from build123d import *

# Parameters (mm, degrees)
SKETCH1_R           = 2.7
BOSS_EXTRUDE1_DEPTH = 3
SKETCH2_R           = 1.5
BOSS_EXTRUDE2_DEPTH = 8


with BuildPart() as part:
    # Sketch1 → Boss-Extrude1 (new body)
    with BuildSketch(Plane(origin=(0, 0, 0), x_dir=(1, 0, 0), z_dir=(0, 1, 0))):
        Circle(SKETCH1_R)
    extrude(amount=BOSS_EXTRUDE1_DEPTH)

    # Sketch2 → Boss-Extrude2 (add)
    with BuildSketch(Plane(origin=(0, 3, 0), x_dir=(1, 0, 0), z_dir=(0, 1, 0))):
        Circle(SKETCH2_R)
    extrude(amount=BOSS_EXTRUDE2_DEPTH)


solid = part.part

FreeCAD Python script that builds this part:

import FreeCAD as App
import Part
import Sketcher

V = App.Vector
Q = App.Units.Quantity

doc = App.newDocument("Part")
body = doc.addObject("PartDesign::Body", "Body")

sketch1 = doc.addObject("Sketcher::SketchObject", "Sketch")
body.addObject(sketch1)
sketch1.AttachmentSupport = (doc.XZ_Plane, [""])
sketch1.MapMode = "FlatFace"
sketch1.addGeometry(Part.Circle(V(0, 0, 0), V(0, 0, 1), 2.7), False)
sketch1.addConstraint(Sketcher.Constraint("Coincident", 0, 3, -1, 1))
sketch1.addConstraint(Sketcher.Constraint("Diameter", 0, Q("5.4 mm")))
pad1 = doc.addObject("PartDesign::Pad", "Pad")
body.addObject(pad1)
pad1.Profile = sketch1
pad1.Length = 3
pad1.Reversed = True

sketch2 = doc.addObject("Sketcher::SketchObject", "Sketch001")
body.addObject(sketch2)
sketch2.AttachmentSupport = (doc.XZ_Plane, [""])
sketch2.MapMode = "FlatFace"
sketch2.AttachmentOffset = App.Placement(V(0, 0, -3), App.Rotation())
sketch2.addGeometry(Part.Circle(V(0, 0, 0), V(0, 0, 1), 1.5), False)
sketch2.addConstraint(Sketcher.Constraint("Coincident", 0, 3, -1, 1))
sketch2.addConstraint(Sketcher.Constraint("Diameter", 0, Q("3 mm")))
pad2 = doc.addObject("PartDesign::Pad", "Pad001")
body.addObject(pad2)
pad2.Profile = sketch2
pad2.Length = 8
pad2.Reversed = True

doc.recompute()
